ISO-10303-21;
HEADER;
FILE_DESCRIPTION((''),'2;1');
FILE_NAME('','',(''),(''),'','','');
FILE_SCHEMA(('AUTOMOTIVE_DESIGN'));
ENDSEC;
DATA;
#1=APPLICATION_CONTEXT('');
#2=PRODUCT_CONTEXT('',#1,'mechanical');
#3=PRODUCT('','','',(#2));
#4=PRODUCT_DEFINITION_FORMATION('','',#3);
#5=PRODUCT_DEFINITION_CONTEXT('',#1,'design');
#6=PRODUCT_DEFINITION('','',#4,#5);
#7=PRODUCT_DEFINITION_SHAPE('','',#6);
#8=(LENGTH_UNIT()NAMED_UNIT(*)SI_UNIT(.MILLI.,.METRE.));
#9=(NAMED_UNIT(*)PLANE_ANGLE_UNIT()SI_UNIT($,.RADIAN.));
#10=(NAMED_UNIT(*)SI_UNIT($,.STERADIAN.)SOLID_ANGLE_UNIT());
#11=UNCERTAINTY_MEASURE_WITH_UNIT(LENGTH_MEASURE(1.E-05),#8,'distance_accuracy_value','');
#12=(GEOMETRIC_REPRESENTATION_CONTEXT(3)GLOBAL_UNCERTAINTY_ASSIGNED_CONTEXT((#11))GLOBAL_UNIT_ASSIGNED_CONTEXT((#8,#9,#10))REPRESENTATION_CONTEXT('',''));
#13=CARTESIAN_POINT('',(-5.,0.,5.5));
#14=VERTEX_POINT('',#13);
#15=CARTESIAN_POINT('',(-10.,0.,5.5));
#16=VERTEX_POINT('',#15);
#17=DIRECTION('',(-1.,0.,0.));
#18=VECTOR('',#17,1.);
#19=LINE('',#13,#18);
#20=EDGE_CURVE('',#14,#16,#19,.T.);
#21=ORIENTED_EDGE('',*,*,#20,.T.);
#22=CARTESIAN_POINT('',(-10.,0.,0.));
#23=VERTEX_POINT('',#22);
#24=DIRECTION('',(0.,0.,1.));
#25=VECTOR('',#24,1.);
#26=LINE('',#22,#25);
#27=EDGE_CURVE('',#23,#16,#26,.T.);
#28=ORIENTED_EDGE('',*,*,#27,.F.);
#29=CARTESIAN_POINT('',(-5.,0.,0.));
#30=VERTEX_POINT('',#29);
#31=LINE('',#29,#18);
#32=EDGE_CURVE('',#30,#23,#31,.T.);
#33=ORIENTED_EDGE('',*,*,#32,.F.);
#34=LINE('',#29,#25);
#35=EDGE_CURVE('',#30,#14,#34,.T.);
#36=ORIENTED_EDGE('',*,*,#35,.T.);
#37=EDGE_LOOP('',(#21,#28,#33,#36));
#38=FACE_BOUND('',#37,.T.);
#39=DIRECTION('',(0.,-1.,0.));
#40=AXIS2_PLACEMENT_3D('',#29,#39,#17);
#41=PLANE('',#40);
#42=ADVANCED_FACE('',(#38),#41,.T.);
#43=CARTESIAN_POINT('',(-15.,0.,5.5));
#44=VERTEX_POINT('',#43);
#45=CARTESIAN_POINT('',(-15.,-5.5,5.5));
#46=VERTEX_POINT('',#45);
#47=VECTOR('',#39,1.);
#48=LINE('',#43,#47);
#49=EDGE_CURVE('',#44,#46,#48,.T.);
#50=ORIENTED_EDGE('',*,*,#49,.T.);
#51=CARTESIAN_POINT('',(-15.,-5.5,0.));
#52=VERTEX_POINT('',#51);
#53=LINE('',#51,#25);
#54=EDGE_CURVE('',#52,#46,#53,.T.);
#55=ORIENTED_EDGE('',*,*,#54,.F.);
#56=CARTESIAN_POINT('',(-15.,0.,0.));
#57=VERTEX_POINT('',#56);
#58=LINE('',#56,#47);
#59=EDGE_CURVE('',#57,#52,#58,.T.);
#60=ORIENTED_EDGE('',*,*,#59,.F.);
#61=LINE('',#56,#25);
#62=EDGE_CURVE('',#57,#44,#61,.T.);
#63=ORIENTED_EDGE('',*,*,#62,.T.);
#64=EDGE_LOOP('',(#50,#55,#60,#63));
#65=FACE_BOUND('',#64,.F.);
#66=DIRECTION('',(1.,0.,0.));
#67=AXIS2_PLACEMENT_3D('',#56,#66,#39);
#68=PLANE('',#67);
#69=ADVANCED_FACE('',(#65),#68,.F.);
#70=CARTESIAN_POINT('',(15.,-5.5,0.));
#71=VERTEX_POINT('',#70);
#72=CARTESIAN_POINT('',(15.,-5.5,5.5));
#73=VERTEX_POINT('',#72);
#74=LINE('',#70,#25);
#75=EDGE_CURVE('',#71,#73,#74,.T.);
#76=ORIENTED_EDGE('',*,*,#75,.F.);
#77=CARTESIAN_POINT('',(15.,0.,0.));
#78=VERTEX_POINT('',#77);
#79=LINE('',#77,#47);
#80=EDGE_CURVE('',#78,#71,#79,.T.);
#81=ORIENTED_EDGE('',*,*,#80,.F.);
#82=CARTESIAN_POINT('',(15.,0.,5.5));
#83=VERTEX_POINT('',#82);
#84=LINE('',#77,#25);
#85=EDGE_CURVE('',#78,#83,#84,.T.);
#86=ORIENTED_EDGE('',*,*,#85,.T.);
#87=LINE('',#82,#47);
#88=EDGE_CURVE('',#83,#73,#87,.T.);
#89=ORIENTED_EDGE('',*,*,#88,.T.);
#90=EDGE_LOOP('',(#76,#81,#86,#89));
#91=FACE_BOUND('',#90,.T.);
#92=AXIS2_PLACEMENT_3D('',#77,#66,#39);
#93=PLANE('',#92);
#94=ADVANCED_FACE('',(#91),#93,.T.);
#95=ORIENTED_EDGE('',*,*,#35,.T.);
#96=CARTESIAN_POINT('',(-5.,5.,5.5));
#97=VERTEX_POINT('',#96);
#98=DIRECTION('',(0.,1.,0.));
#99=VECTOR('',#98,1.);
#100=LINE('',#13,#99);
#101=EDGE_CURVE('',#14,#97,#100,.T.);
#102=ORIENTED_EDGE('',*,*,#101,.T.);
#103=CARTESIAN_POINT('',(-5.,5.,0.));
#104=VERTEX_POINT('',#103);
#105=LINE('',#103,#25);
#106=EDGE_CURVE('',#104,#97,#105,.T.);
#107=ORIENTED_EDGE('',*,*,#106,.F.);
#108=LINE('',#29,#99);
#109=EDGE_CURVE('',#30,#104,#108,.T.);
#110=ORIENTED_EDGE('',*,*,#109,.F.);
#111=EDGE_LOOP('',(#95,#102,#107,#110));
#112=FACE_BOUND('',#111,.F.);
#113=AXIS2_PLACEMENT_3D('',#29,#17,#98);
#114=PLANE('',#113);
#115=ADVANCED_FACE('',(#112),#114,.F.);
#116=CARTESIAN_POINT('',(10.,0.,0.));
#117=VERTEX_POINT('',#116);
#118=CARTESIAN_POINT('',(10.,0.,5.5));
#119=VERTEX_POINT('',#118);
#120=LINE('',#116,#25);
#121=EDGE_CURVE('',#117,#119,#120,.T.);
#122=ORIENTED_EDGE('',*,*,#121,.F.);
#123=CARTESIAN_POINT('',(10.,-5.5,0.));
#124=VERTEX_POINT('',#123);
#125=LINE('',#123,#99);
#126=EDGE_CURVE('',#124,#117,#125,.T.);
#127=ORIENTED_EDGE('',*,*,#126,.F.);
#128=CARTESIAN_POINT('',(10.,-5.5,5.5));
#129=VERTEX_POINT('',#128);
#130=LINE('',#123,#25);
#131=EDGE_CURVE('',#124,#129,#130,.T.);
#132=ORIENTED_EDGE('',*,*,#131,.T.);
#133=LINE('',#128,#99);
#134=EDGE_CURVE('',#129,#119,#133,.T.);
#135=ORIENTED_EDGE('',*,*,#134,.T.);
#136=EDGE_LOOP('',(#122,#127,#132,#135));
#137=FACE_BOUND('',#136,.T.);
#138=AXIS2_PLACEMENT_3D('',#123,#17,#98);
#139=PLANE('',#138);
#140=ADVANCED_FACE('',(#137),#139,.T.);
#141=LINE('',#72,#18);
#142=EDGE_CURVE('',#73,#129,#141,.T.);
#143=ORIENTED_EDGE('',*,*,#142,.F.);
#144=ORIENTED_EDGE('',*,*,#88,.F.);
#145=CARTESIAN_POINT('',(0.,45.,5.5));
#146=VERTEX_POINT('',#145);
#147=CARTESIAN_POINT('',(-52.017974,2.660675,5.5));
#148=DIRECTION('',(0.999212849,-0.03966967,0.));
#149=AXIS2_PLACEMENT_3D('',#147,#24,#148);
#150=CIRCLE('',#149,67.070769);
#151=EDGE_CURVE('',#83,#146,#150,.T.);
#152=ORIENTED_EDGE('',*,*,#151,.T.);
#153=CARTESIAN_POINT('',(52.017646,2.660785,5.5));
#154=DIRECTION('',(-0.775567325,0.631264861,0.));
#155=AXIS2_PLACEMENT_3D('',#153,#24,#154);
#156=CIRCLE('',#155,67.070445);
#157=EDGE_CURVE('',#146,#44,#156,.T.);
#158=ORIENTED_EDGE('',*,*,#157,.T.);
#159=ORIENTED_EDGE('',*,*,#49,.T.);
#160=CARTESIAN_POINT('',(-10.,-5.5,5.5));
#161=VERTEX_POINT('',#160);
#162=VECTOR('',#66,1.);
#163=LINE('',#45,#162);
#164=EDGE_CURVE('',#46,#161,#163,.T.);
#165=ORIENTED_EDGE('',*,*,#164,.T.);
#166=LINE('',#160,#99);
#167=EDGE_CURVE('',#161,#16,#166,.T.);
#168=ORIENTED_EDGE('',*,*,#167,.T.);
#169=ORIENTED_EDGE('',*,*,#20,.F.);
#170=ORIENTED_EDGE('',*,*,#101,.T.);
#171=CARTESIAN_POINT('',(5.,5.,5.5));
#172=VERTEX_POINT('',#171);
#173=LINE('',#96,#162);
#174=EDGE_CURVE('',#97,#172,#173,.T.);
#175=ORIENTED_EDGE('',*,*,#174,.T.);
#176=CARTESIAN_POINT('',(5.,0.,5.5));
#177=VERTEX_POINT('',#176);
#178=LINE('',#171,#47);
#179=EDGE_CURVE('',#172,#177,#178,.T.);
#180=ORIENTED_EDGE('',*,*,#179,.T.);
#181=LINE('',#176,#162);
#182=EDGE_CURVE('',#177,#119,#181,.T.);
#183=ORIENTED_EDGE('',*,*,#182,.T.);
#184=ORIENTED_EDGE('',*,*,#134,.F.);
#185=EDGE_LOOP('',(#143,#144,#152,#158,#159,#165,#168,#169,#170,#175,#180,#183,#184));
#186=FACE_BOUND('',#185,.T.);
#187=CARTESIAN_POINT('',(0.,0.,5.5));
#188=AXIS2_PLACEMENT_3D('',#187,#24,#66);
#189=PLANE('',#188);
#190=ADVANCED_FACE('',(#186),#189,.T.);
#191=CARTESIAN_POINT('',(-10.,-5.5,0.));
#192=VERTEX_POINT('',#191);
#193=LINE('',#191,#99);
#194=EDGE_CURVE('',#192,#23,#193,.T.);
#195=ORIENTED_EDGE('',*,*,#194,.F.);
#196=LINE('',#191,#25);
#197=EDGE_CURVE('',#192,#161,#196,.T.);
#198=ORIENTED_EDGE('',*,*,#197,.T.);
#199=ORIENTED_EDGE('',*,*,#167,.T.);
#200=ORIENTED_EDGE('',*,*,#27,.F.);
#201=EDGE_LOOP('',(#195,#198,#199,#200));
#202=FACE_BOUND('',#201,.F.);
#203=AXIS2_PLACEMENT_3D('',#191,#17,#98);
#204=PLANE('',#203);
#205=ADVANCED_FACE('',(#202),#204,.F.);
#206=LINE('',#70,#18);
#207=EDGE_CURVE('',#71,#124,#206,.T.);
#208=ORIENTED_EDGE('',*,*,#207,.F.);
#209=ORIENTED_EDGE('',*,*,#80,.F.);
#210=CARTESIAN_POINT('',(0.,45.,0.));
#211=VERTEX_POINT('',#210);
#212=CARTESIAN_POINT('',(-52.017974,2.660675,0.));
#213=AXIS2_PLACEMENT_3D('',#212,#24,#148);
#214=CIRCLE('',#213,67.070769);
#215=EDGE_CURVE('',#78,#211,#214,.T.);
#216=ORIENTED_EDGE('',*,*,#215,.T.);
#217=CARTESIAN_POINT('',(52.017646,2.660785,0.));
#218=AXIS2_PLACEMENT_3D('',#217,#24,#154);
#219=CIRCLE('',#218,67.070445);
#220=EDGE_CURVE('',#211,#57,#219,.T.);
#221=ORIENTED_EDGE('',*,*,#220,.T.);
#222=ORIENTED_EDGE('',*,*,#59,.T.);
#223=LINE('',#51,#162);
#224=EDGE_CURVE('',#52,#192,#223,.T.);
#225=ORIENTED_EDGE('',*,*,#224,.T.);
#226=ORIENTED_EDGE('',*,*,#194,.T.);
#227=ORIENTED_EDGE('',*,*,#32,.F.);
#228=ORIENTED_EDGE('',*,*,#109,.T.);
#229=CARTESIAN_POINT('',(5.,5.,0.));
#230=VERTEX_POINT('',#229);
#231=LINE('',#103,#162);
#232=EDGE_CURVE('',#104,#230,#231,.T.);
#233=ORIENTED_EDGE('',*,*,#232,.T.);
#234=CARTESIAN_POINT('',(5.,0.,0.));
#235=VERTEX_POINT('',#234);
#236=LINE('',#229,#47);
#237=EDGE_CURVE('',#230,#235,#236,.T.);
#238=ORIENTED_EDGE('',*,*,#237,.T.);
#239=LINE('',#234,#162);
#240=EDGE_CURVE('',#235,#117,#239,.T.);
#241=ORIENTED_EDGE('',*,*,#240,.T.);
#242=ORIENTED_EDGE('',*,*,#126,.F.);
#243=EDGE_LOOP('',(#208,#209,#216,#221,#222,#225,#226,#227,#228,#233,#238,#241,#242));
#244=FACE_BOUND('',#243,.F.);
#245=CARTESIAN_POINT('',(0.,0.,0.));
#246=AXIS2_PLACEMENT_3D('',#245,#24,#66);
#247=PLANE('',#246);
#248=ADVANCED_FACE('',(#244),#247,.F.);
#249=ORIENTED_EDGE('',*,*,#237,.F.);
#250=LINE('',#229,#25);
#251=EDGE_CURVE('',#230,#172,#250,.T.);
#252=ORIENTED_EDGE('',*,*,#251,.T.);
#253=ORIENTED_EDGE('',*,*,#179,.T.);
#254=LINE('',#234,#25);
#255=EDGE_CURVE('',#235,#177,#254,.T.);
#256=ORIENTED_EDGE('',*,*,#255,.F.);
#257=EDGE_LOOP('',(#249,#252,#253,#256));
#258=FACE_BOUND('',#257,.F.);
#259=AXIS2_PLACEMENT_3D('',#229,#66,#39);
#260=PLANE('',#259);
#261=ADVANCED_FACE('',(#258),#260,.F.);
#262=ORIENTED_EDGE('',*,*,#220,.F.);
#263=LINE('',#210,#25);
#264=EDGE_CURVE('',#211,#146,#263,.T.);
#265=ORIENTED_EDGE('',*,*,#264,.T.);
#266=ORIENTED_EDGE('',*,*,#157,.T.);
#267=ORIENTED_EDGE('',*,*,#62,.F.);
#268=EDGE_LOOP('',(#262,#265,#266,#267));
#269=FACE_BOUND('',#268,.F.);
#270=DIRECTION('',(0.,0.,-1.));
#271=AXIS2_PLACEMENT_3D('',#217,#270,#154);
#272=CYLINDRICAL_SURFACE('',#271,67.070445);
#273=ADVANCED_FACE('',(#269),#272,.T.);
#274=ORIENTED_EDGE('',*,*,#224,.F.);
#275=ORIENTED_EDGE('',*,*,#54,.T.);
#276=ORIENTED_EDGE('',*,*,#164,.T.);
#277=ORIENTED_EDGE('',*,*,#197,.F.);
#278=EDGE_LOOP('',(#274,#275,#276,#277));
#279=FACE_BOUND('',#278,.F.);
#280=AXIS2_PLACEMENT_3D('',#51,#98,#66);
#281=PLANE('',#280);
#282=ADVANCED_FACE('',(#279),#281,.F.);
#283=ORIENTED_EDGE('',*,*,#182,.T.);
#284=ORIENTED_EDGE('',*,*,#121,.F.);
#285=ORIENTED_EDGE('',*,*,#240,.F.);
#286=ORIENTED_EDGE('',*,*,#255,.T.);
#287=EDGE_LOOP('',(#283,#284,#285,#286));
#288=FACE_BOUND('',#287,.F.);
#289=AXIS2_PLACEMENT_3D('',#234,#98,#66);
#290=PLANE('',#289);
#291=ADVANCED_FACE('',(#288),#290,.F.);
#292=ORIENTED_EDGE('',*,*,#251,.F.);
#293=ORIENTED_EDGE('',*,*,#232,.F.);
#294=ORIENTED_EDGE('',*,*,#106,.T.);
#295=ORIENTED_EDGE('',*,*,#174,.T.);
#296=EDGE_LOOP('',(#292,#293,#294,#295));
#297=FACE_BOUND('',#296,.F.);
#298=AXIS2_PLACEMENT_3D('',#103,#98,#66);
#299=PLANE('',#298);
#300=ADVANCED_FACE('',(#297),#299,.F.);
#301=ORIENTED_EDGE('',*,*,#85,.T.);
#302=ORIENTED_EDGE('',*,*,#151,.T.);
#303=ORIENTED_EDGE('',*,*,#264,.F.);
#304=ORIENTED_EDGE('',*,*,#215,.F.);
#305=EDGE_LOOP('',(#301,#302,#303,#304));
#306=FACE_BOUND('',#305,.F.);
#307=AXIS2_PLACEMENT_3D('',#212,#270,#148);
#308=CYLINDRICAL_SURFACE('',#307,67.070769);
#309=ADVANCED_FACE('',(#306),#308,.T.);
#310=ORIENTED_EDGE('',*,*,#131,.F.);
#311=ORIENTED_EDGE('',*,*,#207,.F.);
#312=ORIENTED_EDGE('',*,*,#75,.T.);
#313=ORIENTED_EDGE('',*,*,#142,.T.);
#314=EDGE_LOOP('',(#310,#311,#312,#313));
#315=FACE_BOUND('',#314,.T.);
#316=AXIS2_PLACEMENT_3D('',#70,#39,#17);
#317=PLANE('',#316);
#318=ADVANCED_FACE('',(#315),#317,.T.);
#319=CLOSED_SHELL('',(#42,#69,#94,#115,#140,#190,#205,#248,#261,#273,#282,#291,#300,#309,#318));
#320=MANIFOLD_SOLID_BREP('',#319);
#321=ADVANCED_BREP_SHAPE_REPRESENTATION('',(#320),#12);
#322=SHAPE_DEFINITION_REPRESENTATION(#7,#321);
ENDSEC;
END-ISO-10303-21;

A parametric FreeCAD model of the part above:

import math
import FreeCAD as App
import Part
import Sketcher

V = App.Vector
Q = App.Units.Quantity

doc = App.newDocument("Part")
body = doc.addObject("PartDesign::Body", "Body")

sketch1 = doc.addObject("Sketcher::SketchObject", "Sketch")
body.addObject(sketch1)
sketch1.AttachmentSupport = (doc.XY_Plane, [""])
sketch1.MapMode = "FlatFace"
sketch1.addGeometry([
    Part.LineSegment(V(-10, 0, 0), V(-5, 0, 0)),
    Part.LineSegment(V(-5, 0, 0), V(-5, 5, 0)),
    Part.LineSegment(V(-5, 5, 0), V(5, 5, 0)),
    Part.LineSegment(V(5, 5, 0), V(5, 0, 0)),
    Part.LineSegment(V(5, 0, 0), V(10, 0, 0)),
    Part.LineSegment(V(10, 0, 0), V(10, -6, 0)),
    Part.LineSegment(V(10, -6, 0), V(15, -6, 0)),
    Part.LineSegment(V(15, -6, 0), V(15, 0, 0)),
    Part.ArcOfCircle(Part.Circle(V(-52, 3, 0), V(0, 0, 1), 67), math.radians(-2), math.radians(39)),
    Part.ArcOfCircle(Part.Circle(V(52, 3, 0), V(0, 0, 1), 67), math.radians(141), math.radians(182)),
    Part.LineSegment(V(-15, 0, 0), V(-15, -6, 0)),
    Part.LineSegment(V(-15, -6, 0), V(-10, -6, 0)),
    Part.LineSegment(V(-10, -6, 0), V(-10, 0, 0)),
], False)
sketch1.addConstraint([
    Sketcher.Constraint("Coincident", 0, 2, 1, 1),
    Sketcher.Constraint("Coincident", 1, 2, 2, 1),
    Sketcher.Constraint("Coincident", 2, 2, 3, 1),
    Sketcher.Constraint("Coincident", 3, 2, 4, 1),
    Sketcher.Constraint("Coincident", 4, 2, 5, 1),
    Sketcher.Constraint("Coincident", 5, 2, 6, 1),
    Sketcher.Constraint("Coincident", 6, 2, 7, 1),
    Sketcher.Constraint("Coincident", 7, 2, 8, 1),
    Sketcher.Constraint("Coincident", 8, 2, 9, 1),
    Sketcher.Constraint("Coincident", 9, 2, 10, 1),
    Sketcher.Constraint("Coincident", 10, 2, 11, 1),
    Sketcher.Constraint("Coincident", 11, 2, 12, 1),
    Sketcher.Constraint("Coincident", 12, 2, 0, 1),
    Sketcher.Constraint("Horizontal", 0),
    Sketcher.Constraint("Vertical", 1),
    Sketcher.Constraint("Horizontal", 2),
    Sketcher.Constraint("Vertical", 3),
    Sketcher.Constraint("Horizontal", 4),
    Sketcher.Constraint("Vertical", 5),
    Sketcher.Constraint("Horizontal", 6),
    Sketcher.Constraint("Vertical", 7),
    Sketcher.Constraint("Vertical", 10),
    Sketcher.Constraint("Horizontal", 11),
    Sketcher.Constraint("Vertical", 12),
    Sketcher.Constraint("Equal", 8, 9),
    Sketcher.Constraint("Symmetric", 0, 2, 3, 2, -1, 1),
    Sketcher.Constraint("Symmetric", 7, 2, 9, 2, -1, 1),
    Sketcher.Constraint("Symmetric", 8, 3, 9, 3, -2),
    Sketcher.Constraint("Symmetric", 5, 2, 11, 2, -2),
    Sketcher.Constraint("PointOnObject", 0, 2, -1),
    Sketcher.Constraint("Equal", 4, 6),
    Sketcher.Constraint("Equal", 11, 1),
    Sketcher.Constraint("DistanceX", 0, 1, 0, 2, Q("5 mm")),
    Sketcher.Constraint("DistanceX", 2, 1, 2, 2, Q("10 mm")),
    Sketcher.Constraint("DistanceY", 5, 2, 5, 1, Q("5.5 mm")),
    Sketcher.Constraint("DistanceY", -1, 1, 8, 2, Q("45 mm")),
    Sketcher.Constraint("Radius", 8, Q("67.0706 mm")),
])
pad1 = doc.addObject("PartDesign::Pad", "Pad")
body.addObject(pad1)
pad1.Profile = sketch1
pad1.Length = 5.5

doc.recompute()
